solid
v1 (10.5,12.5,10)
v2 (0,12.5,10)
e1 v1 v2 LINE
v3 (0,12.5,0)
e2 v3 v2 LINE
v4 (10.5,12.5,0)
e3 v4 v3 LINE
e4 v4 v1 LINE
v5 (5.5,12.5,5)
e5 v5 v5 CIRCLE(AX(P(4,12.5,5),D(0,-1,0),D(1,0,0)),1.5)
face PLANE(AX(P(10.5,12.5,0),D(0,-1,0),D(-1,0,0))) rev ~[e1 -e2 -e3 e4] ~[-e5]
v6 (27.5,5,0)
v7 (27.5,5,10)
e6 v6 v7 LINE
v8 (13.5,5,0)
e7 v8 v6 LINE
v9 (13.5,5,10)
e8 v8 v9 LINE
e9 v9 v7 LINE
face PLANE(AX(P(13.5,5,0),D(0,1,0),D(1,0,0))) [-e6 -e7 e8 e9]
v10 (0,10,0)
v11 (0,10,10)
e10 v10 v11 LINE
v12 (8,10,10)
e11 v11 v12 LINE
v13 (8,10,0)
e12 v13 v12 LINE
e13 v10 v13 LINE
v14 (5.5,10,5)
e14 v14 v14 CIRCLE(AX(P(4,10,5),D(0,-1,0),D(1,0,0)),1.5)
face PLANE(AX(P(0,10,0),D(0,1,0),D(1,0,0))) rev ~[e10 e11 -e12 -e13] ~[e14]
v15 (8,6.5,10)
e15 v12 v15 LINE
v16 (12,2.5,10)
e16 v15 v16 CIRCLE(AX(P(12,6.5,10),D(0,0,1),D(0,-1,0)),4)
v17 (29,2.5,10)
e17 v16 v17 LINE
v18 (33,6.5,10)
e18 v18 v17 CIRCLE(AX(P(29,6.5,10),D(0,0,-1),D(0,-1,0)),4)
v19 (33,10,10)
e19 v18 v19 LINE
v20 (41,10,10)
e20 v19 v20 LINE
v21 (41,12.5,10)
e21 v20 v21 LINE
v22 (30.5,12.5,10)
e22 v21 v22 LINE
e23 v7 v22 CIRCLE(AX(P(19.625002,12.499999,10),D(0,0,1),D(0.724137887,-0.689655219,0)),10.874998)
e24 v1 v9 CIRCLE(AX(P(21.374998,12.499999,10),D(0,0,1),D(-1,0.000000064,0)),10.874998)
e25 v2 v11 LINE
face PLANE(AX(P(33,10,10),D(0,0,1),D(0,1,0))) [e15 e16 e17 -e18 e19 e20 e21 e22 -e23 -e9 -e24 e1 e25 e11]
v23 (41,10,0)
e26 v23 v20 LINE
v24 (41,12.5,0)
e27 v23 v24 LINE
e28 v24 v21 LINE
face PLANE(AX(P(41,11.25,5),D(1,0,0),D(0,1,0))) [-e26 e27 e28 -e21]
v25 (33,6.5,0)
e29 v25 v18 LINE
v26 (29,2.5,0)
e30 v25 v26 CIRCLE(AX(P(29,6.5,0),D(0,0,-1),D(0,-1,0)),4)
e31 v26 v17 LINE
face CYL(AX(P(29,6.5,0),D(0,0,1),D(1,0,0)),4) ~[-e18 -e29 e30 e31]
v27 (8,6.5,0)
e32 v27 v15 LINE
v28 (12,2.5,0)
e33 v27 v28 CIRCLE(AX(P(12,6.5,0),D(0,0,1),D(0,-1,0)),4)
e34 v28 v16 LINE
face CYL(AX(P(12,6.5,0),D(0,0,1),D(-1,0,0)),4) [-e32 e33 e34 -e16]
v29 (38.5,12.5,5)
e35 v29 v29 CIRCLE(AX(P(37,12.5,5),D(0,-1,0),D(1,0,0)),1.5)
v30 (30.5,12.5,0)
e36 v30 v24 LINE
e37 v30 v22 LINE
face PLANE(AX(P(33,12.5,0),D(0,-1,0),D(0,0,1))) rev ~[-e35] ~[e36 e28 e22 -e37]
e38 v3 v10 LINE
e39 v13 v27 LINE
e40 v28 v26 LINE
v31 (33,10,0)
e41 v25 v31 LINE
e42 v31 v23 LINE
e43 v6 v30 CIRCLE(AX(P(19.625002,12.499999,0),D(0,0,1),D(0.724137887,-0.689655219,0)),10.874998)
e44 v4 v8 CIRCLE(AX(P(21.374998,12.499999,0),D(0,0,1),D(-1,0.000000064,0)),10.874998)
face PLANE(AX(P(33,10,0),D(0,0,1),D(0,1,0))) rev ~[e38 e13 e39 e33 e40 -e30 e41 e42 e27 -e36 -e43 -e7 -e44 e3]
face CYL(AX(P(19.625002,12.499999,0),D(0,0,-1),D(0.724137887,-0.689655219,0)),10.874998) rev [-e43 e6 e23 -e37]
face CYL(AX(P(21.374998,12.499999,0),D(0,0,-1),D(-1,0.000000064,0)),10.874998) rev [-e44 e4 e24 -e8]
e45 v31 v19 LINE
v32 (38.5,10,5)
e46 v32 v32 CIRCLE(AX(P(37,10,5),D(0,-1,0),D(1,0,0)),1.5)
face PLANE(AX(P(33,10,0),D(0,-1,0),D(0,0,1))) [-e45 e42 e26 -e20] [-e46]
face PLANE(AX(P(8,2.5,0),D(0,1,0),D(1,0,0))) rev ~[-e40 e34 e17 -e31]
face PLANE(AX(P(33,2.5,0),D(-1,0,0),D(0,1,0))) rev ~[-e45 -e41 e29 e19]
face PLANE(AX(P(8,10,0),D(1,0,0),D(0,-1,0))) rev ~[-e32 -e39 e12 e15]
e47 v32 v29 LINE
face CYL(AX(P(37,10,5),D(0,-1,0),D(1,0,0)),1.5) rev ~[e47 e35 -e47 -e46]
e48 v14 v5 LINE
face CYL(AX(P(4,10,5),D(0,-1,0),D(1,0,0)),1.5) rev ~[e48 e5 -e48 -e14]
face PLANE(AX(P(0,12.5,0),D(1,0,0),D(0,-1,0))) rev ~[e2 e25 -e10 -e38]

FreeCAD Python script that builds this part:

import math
import FreeCAD as App
import Part
import Sketcher

V = App.Vector


def edges_at(feature, points):
    """Names of the edges that pass closest to the given points."""
    edges = feature.Shape.Edges
    near = lambda p: min(range(len(edges)), key=lambda i: edges[i].distToShape(Part.Vertex(*p))[0])
    return sorted({f"Edge{near(p) + 1}" for p in points})

doc = App.newDocument("Part")
body = doc.addObject("PartDesign::Body", "Body")

sketch1 = body.newObject("Sketcher::SketchObject", "Sketch")
sketch1.AttachmentSupport = (doc.getObject("XY_Plane"), [""])
sketch1.MapMode = "FlatFace"
sketch1.addGeometry([
    Part.ArcOfCircle(Part.Circle(V(21.4, 12.5, 0), V(0, 0, 1), 10.9), math.radians(180), math.radians(224)),
    Part.LineSegment(V(10.5, 12.5, 0), V(0, 12.5, 0)),
    Part.LineSegment(V(0, 12.5, 0), V(0, 10, 0)),
    Part.LineSegment(V(0, 10, 0), V(8, 10, 0)),
    Part.LineSegment(V(8, 10, 0), V(8, 2.5, 0)),
    Part.LineSegment(V(8, 2.5, 0), V(33, 2.5, 0)),
    Part.LineSegment(V(33, 2.5, 0), V(33, 12.5, 0)),
    Part.LineSegment(V(33, 12.5, 0), V(30.5, 12.5, 0)),
    Part.ArcOfCircle(Part.Circle(V(19.6, 12.5, 0), V(0, 0, 1), 10.9), math.radians(-44), math.radians(0)),
    Part.LineSegment(V(27.5, 5, 0), V(13.5, 5, 0)),
], False)
sketch1.addConstraint([
    Sketcher.Constraint("Coincident", 0, 1, 1, 1),
    Sketcher.Constraint("Coincident", 1, 2, 2, 1),
    Sketcher.Constraint("Coincident", 2, 2, 3, 1),
    Sketcher.Constraint("Coincident", 3, 2, 4, 1),
    Sketcher.Constraint("Coincident", 4, 2, 5, 1),
    Sketcher.Constraint("Coincident", 5, 2, 6, 1),
    Sketcher.Constraint("Coincident", 6, 2, 7, 1),
    Sketcher.Constraint("Coincident", 7, 2, 8, 2),
    Sketcher.Constraint("Coincident", 8, 1, 9, 1),
    Sketcher.Constraint("Coincident", 9, 2, 0, 2),
    Sketcher.Constraint("Horizontal", 1),
    Sketcher.Constraint("Vertical", 2),
    Sketcher.Constraint("Horizontal", 3),
    Sketcher.Constraint("Vertical", 4),
    Sketcher.Constraint("Horizontal", 5),
    Sketcher.Constraint("Vertical", 6),
    Sketcher.Constraint("Horizontal", 7),
    Sketcher.Constraint("Horizontal", 9),
    Sketcher.Constraint("Equal", 0, 8),
    Sketcher.Constraint("PointOnObject", 1, 2, -2),
    Sketcher.Constraint("Horizontal", 0, 3, 8, 3),
    Sketcher.Constraint("Horizontal", 8, 3, 0, 1),
    Sketcher.Constraint("Horizontal", 1, 2, 6, 2),
    Sketcher.Constraint("Equal", 7, 2),
    Sketcher.Constraint("DistanceX", 3, 1, 3, 2, 8.0),
    Sketcher.Constraint("DistanceX", 5, 1, 5, 2, 25.0),
    Sketcher.Constraint("DistanceX", 9, 2, 9, 1, 14.0),
    Sketcher.Constraint("DistanceY", 6, 1, 6, 2, 10.0),
    Sketcher.Constraint("DistanceX", 1, 2, 1, 1, 10.5),
    Sketcher.Constraint("DistanceX", 7, 2, 7, 1, 2.5),
    Sketcher.Constraint("DistanceY", -1, 1, 2, 2, 10.0),
    Sketcher.Constraint("DistanceY", -1, 1, 8, 1, 5.0),
])
pad1 = body.newObject("PartDesign::Pad", "Pad")
pad1.Profile = sketch1
pad1.Length = 10

sketch2 = body.newObject("Sketcher::SketchObject", "Sketch001")
sketch2.AttachmentSupport = (doc.getObject("YZ_Plane"), [""])
sketch2.MapMode = "FlatFace"
sketch2.AttachmentOffset = App.Placement(V(0, 0, 33), App.Rotation())
sketch2.addGeometry([
    Part.LineSegment(V(10, 10, 0), V(10, 0, 0)),
    Part.LineSegment(V(10, 0, 0), V(12.5, 0, 0)),
    Part.LineSegment(V(12.5, 0, 0), V(12.5, 10, 0)),
    Part.LineSegment(V(12.5, 10, 0), V(10, 10, 0)),
], False)
sketch2.addConstraint([
    Sketcher.Constraint("Coincident", 0, 2, 1, 1),
    Sketcher.Constraint("Coincident", 1, 2, 2, 1),
    Sketcher.Constraint("Coincident", 2, 2, 3, 1),
    Sketcher.Constraint("Coincident", 3, 2, 0, 1),
    Sketcher.Constraint("Vertical", 0),
    Sketcher.Constraint("Horizontal", 1),
    Sketcher.Constraint("Vertical", 2),
    Sketcher.Constraint("Horizontal", 3),
    Sketcher.Constraint("PointOnObject", 0, 2, -1),
    Sketcher.Constraint("DistanceY", 0, 2, 0, 1, 10.0),
    Sketcher.Constraint("DistanceX", 1, 1, 1, 2, 2.5),
    Sketcher.Constraint("DistanceX", -1, 1, 0, 2, 10.0),
])
pad2 = body.newObject("PartDesign::Pad", "Pad001")
pad2.Profile = sketch2
pad2.Length = 8

sketch3 = body.newObject("Sketcher::SketchObject", "Sketch002")
sketch3.AttachmentSupport = (doc.getObject("XZ_Plane"), [""])
sketch3.MapMode = "FlatFace"
sketch3.AttachmentOffset = App.Placement(V(0, 0, -10), App.Rotation())
sketch3.addGeometry([
    Part.Circle(V(4, 5, 0), V(0, 0, 1), 1.5),
    Part.Circle(V(37, 5, 0), V(0, 0, 1), 1.5),
], False)
sketch3.addConstraint([
    Sketcher.Constraint("Equal", 0, 1),
    Sketcher.Constraint("Horizontal", 0, 3, 1, 3),
    Sketcher.Constraint("Diameter", 0, 3.0),
    Sketcher.Constraint("DistanceX", -1, 1, 0, 3, 4.0),
    Sketcher.Constraint("DistanceY", -1, 1, 0, 3, 5.0),
    Sketcher.Constraint("DistanceX", -1, 1, 1, 3, 37.0),
])
pocket1 = body.newObject("PartDesign::Pocket", "Pocket")
pocket1.Profile = sketch3
pocket1.Type = "ThroughAll"
doc.recompute()

fillet = body.newObject("PartDesign::Fillet", "Fillet")
fillet.Base = (pocket1, edges_at(pocket1, [(8, 2.5, 5), (33, 2.5, 5)]))
fillet.Radius = 4

doc.recompute()
